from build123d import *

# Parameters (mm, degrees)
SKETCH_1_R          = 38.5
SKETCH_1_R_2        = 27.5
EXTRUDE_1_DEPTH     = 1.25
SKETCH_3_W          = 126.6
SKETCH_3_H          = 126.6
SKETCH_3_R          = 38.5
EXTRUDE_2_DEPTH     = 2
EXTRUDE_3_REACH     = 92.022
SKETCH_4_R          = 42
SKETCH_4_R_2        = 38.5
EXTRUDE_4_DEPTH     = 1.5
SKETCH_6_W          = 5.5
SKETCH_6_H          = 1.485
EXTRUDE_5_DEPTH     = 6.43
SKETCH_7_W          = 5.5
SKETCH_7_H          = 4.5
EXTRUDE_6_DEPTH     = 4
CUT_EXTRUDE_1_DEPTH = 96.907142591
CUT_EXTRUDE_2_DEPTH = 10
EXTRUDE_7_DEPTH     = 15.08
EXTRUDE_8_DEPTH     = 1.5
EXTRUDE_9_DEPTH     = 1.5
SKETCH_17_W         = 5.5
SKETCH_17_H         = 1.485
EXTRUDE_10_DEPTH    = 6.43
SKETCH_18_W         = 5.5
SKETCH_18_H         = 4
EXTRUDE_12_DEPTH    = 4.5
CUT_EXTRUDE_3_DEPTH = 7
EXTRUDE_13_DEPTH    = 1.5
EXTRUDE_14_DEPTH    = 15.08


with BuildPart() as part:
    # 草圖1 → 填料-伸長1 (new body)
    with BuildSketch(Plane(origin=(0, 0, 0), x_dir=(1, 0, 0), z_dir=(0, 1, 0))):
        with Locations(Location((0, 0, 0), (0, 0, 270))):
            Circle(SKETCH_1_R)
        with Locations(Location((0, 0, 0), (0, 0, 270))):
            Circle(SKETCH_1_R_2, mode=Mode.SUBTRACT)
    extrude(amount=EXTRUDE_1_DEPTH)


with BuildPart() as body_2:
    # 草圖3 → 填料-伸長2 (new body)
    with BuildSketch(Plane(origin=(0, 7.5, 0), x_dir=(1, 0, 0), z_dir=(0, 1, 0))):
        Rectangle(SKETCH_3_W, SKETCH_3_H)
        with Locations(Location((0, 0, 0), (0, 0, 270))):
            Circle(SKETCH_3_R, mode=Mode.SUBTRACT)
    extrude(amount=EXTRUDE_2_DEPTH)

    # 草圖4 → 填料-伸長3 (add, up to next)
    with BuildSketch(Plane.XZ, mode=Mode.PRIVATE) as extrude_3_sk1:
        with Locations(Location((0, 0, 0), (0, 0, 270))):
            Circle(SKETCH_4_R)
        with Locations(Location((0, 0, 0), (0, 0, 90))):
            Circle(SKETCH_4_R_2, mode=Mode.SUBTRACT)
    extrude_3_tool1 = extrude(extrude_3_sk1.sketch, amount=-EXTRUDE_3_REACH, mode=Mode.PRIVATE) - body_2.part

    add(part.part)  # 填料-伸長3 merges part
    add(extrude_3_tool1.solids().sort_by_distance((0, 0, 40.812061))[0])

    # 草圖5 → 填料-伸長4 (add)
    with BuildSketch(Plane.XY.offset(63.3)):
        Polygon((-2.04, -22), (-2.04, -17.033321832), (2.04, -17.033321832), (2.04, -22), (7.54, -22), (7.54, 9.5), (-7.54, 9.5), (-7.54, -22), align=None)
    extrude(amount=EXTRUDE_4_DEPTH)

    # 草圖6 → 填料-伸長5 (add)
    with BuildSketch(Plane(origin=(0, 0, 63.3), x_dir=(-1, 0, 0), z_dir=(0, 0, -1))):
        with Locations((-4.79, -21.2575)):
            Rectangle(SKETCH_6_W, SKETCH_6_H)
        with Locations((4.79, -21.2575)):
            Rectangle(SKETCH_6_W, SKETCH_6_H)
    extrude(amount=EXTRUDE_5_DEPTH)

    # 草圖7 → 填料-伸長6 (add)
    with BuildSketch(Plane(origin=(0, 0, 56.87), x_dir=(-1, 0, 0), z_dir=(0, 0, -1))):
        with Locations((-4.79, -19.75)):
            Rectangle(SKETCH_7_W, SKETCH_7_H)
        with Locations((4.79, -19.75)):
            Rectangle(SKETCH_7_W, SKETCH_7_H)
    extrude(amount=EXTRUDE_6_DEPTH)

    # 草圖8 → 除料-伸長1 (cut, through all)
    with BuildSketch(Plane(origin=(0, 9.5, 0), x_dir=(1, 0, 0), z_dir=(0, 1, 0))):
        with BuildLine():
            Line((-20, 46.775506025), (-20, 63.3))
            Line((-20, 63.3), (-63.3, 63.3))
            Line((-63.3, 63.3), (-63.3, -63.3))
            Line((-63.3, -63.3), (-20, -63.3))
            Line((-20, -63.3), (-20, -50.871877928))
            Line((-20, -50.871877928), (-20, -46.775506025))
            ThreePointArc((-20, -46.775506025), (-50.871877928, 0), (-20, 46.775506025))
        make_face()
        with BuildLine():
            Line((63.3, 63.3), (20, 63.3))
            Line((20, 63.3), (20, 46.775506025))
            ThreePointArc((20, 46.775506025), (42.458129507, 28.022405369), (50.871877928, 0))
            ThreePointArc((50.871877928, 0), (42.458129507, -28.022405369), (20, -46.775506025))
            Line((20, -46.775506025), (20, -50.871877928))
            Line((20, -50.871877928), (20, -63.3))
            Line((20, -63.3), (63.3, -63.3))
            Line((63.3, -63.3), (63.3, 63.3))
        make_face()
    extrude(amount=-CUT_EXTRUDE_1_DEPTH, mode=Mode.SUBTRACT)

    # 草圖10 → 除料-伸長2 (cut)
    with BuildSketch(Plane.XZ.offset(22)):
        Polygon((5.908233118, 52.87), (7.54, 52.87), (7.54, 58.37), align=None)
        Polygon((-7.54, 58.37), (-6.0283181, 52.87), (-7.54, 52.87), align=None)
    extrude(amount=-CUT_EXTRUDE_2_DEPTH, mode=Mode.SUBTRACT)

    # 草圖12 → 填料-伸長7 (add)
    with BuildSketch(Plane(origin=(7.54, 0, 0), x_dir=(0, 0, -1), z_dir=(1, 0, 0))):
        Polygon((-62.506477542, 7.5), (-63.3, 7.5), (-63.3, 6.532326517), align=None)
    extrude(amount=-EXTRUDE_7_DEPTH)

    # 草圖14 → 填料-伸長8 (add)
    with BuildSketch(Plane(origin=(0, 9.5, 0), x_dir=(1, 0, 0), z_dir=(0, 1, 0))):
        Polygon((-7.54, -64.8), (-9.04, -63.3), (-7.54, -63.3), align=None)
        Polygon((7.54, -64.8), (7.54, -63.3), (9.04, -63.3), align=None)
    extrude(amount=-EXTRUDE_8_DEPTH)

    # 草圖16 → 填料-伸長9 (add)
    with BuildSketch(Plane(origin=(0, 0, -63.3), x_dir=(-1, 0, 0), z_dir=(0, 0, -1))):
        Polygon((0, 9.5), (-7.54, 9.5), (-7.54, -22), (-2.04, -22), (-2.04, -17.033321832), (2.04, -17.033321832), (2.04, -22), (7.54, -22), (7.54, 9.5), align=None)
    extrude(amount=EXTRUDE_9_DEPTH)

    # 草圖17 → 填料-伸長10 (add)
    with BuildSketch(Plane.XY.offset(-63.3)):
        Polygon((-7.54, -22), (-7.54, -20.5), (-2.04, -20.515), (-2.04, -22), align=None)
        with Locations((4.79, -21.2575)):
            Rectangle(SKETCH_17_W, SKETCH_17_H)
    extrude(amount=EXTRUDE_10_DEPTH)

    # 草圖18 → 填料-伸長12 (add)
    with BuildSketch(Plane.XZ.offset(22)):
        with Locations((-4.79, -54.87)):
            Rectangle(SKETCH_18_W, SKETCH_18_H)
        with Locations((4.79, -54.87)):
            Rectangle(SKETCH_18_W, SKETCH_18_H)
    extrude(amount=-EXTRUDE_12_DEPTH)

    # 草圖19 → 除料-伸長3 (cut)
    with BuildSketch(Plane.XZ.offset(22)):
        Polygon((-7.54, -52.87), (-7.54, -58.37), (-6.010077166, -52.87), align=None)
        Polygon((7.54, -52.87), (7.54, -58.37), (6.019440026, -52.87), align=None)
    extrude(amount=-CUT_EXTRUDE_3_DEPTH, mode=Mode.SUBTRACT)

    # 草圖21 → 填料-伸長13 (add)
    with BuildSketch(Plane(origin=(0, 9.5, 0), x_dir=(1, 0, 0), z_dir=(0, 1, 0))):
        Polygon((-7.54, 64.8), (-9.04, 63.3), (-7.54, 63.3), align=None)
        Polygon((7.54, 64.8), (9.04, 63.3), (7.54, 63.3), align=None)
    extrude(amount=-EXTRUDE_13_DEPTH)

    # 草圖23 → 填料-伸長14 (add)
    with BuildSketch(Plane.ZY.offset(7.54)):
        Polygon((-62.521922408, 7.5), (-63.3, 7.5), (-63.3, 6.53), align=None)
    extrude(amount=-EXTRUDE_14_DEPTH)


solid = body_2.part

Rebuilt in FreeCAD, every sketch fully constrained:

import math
import FreeCAD as App
import Part
import Sketcher

V = App.Vector

doc = App.newDocument("Part")
body = doc.addObject("PartDesign::Body", "Body")

# Sketch on XZ plane
sketch1 = body.newObject("Sketcher::SketchObject", "Sketch")
sketch1.AttachmentSupport = (doc.getObject("XZ_Plane"), [""])
sketch1.MapMode = "FlatFace"
sketch1.addGeometry(Part.Circle(V(0, 0, 0), V(0, 0, 1), 38), False)
sketch1.addGeometry(Part.Circle(V(0, 0, 0), V(0, 0, 1), 28), False)
sketch1.addConstraint(Sketcher.Constraint("Coincident", 0, 3, -1, 1))
sketch1.addConstraint(Sketcher.Constraint("Coincident", 1, 3, -1, 1))
sketch1.addConstraint(Sketcher.Constraint("Diameter", 0, 77.0))
sketch1.addConstraint(Sketcher.Constraint("Diameter", 1, 55.0))
pad1 = body.newObject("PartDesign::Pad", "Pad")
pad1.Profile = sketch1
pad1.Length = 1.25
pad1.Reversed = True
body2 = doc.addObject("PartDesign::Body", "Body001")
body2.AllowCompound = True

# Sketch on XZ plane
sketch2 = body2.newObject("Sketcher::SketchObject", "Sketch001")
sketch2.AttachmentSupport = (doc.getObject("XZ_Plane001"), [""])
sketch2.MapMode = "FlatFace"
sketch2.AttachmentOffset = App.Placement(V(0, 0, -7.5), App.Rotation())
sketch2.addGeometry(Part.LineSegment(V(-63, -63, 0), V(-63, 63, 0)), False)
sketch2.addGeometry(Part.LineSegment(V(-63, 63, 0), V(63, 63, 0)), False)
sketch2.addGeometry(Part.LineSegment(V(63, 63, 0), V(63, -63, 0)), False)
sketch2.addGeometry(Part.LineSegment(V(63, -63, 0), V(-63, -63, 0)), False)
sketch2.addGeometry(Part.Circle(V(0, 0, 0), V(0, 0, 1), 38), False)
sketch2.addConstraint(Sketcher.Constraint("Coincident", 0, 2, 1, 1))
sketch2.addConstraint(Sketcher.Constraint("Coincident", 1, 2, 2, 1))
sketch2.addConstraint(Sketcher.Constraint("Coincident", 2, 2, 3, 1))
sketch2.addConstraint(Sketcher.Constraint("Coincident", 3, 2, 0, 1))
sketch2.addConstraint(Sketcher.Constraint("Vertical", 0))
sketch2.addConstraint(Sketcher.Constraint("Horizontal", 1))
sketch2.addConstraint(Sketcher.Constraint("Vertical", 2))
sketch2.addConstraint(Sketcher.Constraint("Horizontal", 3))
sketch2.addConstraint(Sketcher.Constraint("Coincident", 4, 3, -1, 1))
sketch2.addConstraint(Sketcher.Constraint("Symmetric", 0, 2, 2, 2, -1, 1))
sketch2.addConstraint(Sketcher.Constraint("Equal", 3, 0))
sketch2.addConstraint(Sketcher.Constraint("Diameter", 4, 77.0))
sketch2.addConstraint(Sketcher.Constraint("DistanceX", 1, 1, 1, 2, 126.6))
pad2 = body2.newObject("PartDesign::Pad", "Pad001")
pad2.Profile = sketch2
pad2.Length = 2
pad2.Reversed = True
doc.recompute()

boolean = body2.newObject("PartDesign::Boolean", "Boolean")
boolean.Type = "Fuse"
boolean.addObjects([body])

# Sketch on XZ plane
sketch3 = body2.newObject("Sketcher::SketchObject", "Sketch002")
sketch3.AttachmentSupport = (doc.getObject("XZ_Plane001"), [""])
sketch3.MapMode = "FlatFace"
sketch3.addGeometry(Part.Circle(V(0, 0, 0), V(0, 0, 1), 42), False)
sketch3.addGeometry(Part.Circle(V(0, 0, 0), V(0, 0, 1), 38), False)
sketch3.addConstraint(Sketcher.Constraint("Coincident", 0, 3, -1, 1))
sketch3.addConstraint(Sketcher.Constraint("Coincident", 1, 3, -1, 1))
sketch3.addConstraint(Sketcher.Constraint("Diameter", 0, 84.0))
sketch3.addConstraint(Sketcher.Constraint("Diameter", 1, 77.0))
pad3 = body2.newObject("PartDesign::Pad", "Pad002")
pad3.Profile = sketch3
pad3.Length = 7.5
pad3.Reversed = True

# Sketch on XY plane
sketch4 = body2.newObject("Sketcher::SketchObject", "Sketch003")
sketch4.AttachmentSupport = (doc.getObject("XY_Plane001"), [""])
sketch4.MapMode = "FlatFace"
sketch4.AttachmentOffset = App.Placement(V(0, 0, 63.3), App.Rotation())
sketch4.addGeometry(Part.LineSegment(V(-2, -22, 0), V(-2, -17, 0)), False)
sketch4.addGeometry(Part.LineSegment(V(-2, -17, 0), V(2, -17, 0)), False)
sketch4.addGeometry(Part.LineSegment(V(2, -17, 0), V(2, -22, 0)), False)
sketch4.addGeometry(Part.LineSegment(V(2, -22, 0), V(7.5, -22, 0)), False)
sketch4.addGeometry(Part.LineSegment(V(7.5, -22, 0), V(7.5, 9.5, 0)), False)
sketch4.addGeometry(Part.LineSegment(V(7.5, 9.5, 0), V(-7.5, 9.5, 0)), False)
sketch4.addGeometry(Part.LineSegment(V(-7.5, 9.5, 0), V(-7.5, -22, 0)), False)
sketch4.addGeometry(Part.LineSegment(V(-7.5, -22, 0), V(-2, -22, 0)), False)
sketch4.addConstraint(Sketcher.Constraint("Coincident", 0, 2, 1, 1))
sketch4.addConstraint(Sketcher.Constraint("Coincident", 1, 2, 2, 1))
sketch4.addConstraint(Sketcher.Constraint("Coincident", 2, 2, 3, 1))
sketch4.addConstraint(Sketcher.Constraint("Coincident", 3, 2, 4, 1))
sketch4.addConstraint(Sketcher.Constraint("Coincident", 4, 2, 5, 1))
sketch4.addConstraint(Sketcher.Constraint("Coincident", 5, 2, 6, 1))
sketch4.addConstraint(Sketcher.Constraint("Coincident", 6, 2, 7, 1))
sketch4.addConstraint(Sketcher.Constraint("Coincident", 7, 2, 0, 1))
sketch4.addConstraint(Sketcher.Constraint("Vertical", 0))
sketch4.addConstraint(Sketcher.Constraint("Horizontal", 1))
sketch4.addConstraint(Sketcher.Constraint("Vertical", 2))
sketch4.addConstraint(Sketcher.Constraint("Horizontal", 3))
sketch4.addConstraint(Sketcher.Constraint("Vertical", 4))
sketch4.addConstraint(Sketcher.Constraint("Horizontal", 5))
sketch4.addConstraint(Sketcher.Constraint("Vertical", 6))
sketch4.addConstraint(Sketcher.Constraint("Horizontal", 7))
sketch4.addConstraint(Sketcher.Constraint("Symmetric", 3, 2, 6, 2, -2))
sketch4.addConstraint(Sketcher.Constraint("Equal", 3, 7))
sketch4.addConstraint(Sketcher.Constraint("DistanceX", 3, 1, 3, 2, 5.5))
sketch4.addConstraint(Sketcher.Constraint("DistanceY", 4, 1, 4, 2, 31.5))
sketch4.addConstraint(Sketcher.Constraint("DistanceY", 2, 2, -1, 1, 22.0))
sketch4.addConstraint(Sketcher.Constraint("DistanceX", 1, 1, 1, 2, 4.08))
sketch4.addConstraint(Sketcher.Constraint("DistanceY", 0, 1, 0, 2, 4.966678))
pad4 = body2.newObject("PartDesign::Pad", "Pad003")
pad4.Profile = sketch4
pad4.Length = 1.5

# Sketch on XY plane
sketch5 = body2.newObject("Sketcher::SketchObject", "Sketch004")
sketch5.AttachmentSupport = (doc.getObject("XY_Plane001"), [""])
sketch5.MapMode = "FlatFace"
sketch5.AttachmentOffset = App.Placement(V(0, 0, 63.3), App.Rotation())
sketch5.addGeometry(Part.LineSegment(V(7.5, -20.5, 0), V(7.5, -22, 0)), False)
sketch5.addGeometry(Part.LineSegment(V(7.5, -22, 0), V(2, -22, 0)), False)
sketch5.addGeometry(Part.LineSegment(V(2, -22, 0), V(2, -20.5, 0)), False)
sketch5.addGeometry(Part.LineSegment(V(2, -20.5, 0), V(7.5, -20.5, 0)), False)
sketch5.addGeometry(Part.LineSegment(V(-2, -20.5, 0), V(-2, -22, 0)), False)
sketch5.addGeometry(Part.LineSegment(V(-2, -22, 0), V(-7.5, -22, 0)), False)
sketch5.addGeometry(Part.LineSegment(V(-7.5, -22, 0), V(-7.5, -20.5, 0)), False)
sketch5.addGeometry(Part.LineSegment(V(-7.5, -20.5, 0), V(-2, -20.5, 0)), False)
sketch5.addConstraint(Sketcher.Constraint("Coincident", 0, 2, 1, 1))
sketch5.addConstraint(Sketcher.Constraint("Coincident", 1, 2, 2, 1))
sketch5.addConstraint(Sketcher.Constraint("Coincident", 2, 2, 3, 1))
sketch5.addConstraint(Sketcher.Constraint("Coincident", 3, 2, 0, 1))
sketch5.addConstraint(Sketcher.Constraint("Coincident", 4, 2, 5, 1))
sketch5.addConstraint(Sketcher.Constraint("Coincident", 5, 2, 6, 1))
sketch5.addConstraint(Sketcher.Constraint("Coincident", 6, 2, 7, 1))
sketch5.addConstraint(Sketcher.Constraint("Coincident", 7, 2, 4, 1))
sketch5.addConstraint(Sketcher.Constraint("Vertical", 0))
sketch5.addConstraint(Sketcher.Constraint("Horizontal", 1))
sketch5.addConstraint(Sketcher.Constraint("Vertical", 2))
sketch5.addConstraint(Sketcher.Constraint("Horizontal", 3))
sketch5.addConstraint(Sketcher.Constraint("Vertical", 4))
sketch5.addConstraint(Sketcher.Constraint("Horizontal", 5))
sketch5.addConstraint(Sketcher.Constraint("Vertical", 6))
sketch5.addConstraint(Sketcher.Constraint("Horizontal", 7))
sketch5.addConstraint(Sketcher.Constraint("Symmetric", 1, 2, 4, 2, -2))
sketch5.addConstraint(Sketcher.Constraint("Symmetric", 3, 2, 6, 2, -2))
sketch5.addConstraint(Sketcher.Constraint("DistanceX", 1, 2, 1, 1, 5.5))
sketch5.addConstraint(Sketcher.Constraint("DistanceY", 0, 2, -1, 1, 22.0))
sketch5.addConstraint(Sketcher.Constraint("DistanceY", 0, 2, 0, 1, 1.485))
sketch5.addConstraint(Sketcher.Constraint("DistanceX", -1, 1, 0, 2, 7.54))
pad5 = body2.newObject("PartDesign::Pad", "Pad004")
pad5.Profile = sketch5
pad5.Length = 6.43
pad5.Reversed = True

# Sketch on XY plane
sketch6 = body2.newObject("Sketcher::SketchObject", "Sketch005")
sketch6.AttachmentSupport = (doc.getObject("XY_Plane001"), [""])
sketch6.MapMode = "FlatFace"
sketch6.AttachmentOffset = App.Placement(V(0, 0, 56.87), App.Rotation())
sketch6.addGeometry(Part.LineSegment(V(7.5, -17.5, 0), V(7.5, -22, 0)), False)
sketch6.addGeometry(Part.LineSegment(V(7.5, -22, 0), V(2, -22, 0)), False)
sketch6.addGeometry(Part.LineSegment(V(2, -22, 0), V(2, -17.5, 0)), False)
sketch6.addGeometry(Part.LineSegment(V(2, -17.5, 0), V(7.5, -17.5, 0)), False)
sketch6.addGeometry(Part.LineSegment(V(-2, -17.5, 0), V(-2, -22, 0)), False)
sketch6.addGeometry(Part.LineSegment(V(-2, -22, 0), V(-7.5, -22, 0)), False)
sketch6.addGeometry(Part.LineSegment(V(-7.5, -22, 0), V(-7.5, -17.5, 0)), False)
sketch6.addGeometry(Part.LineSegment(V(-7.5, -17.5, 0), V(-2, -17.5, 0)), False)
sketch6.addConstraint(Sketcher.Constraint("Coincident", 0, 2, 1, 1))
sketch6.addConstraint(Sketcher.Constraint("Coincident", 1, 2, 2, 1))
sketch6.addConstraint(Sketcher.Constraint("Coincident", 2, 2, 3, 1))
sketch6.addConstraint(Sketcher.Constraint("Coincident", 3, 2, 0, 1))
sketch6.addConstraint(Sketcher.Constraint("Coincident", 4, 2, 5, 1))
sketch6.addConstraint(Sketcher.Constraint("Coincident", 5, 2, 6, 1))
sketch6.addConstraint(Sketcher.Constraint("Coincident", 6, 2, 7, 1))
sketch6.addConstraint(Sketcher.Constraint("Coincident", 7, 2, 4, 1))
sketch6.addConstraint(Sketcher.Constraint("Vertical", 0))
sketch6.addConstraint(Sketcher.Constraint("Horizontal", 1))
sketch6.addConstraint(Sketcher.Constraint("Vertical", 2))
sketch6.addConstraint(Sketcher.Constraint("Horizontal", 3))
sketch6.addConstraint(Sketcher.Constraint("Vertical", 4))
sketch6.addConstraint(Sketcher.Constraint("Horizontal", 5))
sketch6.addConstraint(Sketcher.Constraint("Vertical", 6))
sketch6.addConstraint(Sketcher.Constraint("Horizontal", 7))
sketch6.addConstraint(Sketcher.Constraint("Symmetric", 1, 2, 4, 2, -2))
sketch6.addConstraint(Sketcher.Constraint("Symmetric", 3, 2, 6, 2, -2))
sketch6.addConstraint(Sketcher.Constraint("DistanceX", 1, 2, 1, 1, 5.5))
sketch6.addConstraint(Sketcher.Constraint("DistanceY", 0, 2, 0, 1, 4.5))
sketch6.addConstraint(Sketcher.Constraint("DistanceY", 0, 2, -1, 1, 22.0))
sketch6.addConstraint(Sketcher.Constraint("DistanceX", -1, 1, 0, 2, 7.54))
pad6 = body2.newObject("PartDesign::Pad", "Pad005")
pad6.Profile = sketch6
pad6.Length = 4
pad6.Reversed = True

# Sketch on XZ plane
sketch7 = body2.newObject("Sketcher::SketchObject", "Sketch006")
sketch7.AttachmentSupport = (doc.getObject("XZ_Plane001"), [""])
sketch7.MapMode = "FlatFace"
sketch7.AttachmentOffset = App.Placement(V(0, 0, -9.5), App.Rotation())
sketch7.addGeometry(Part.LineSegment(V(-20, -47, 0), V(-20, -63, 0)), False)
sketch7.addGeometry(Part.LineSegment(V(-20, -63, 0), V(-63, -63, 0)), False)
sketch7.addGeometry(Part.LineSegment(V(-63, -63, 0), V(-63, 63, 0)), False)
sketch7.addGeometry(Part.LineSegment(V(-63, 63, 0), V(-20, 63, 0)), False)
sketch7.addGeometry(Part.LineSegment(V(-20, 63, 0), V(-20, 47, 0)), False)
sketch7.addGeometry(Part.ArcOfCircle(Part.Circle(V(0, 0, 0), V(0, 0, 1), 51), math.radians(113), math.radians(247)), False)
sketch7.addGeometry(Part.LineSegment(V(63, -63, 0), V(20, -63, 0)), False)
sketch7.addGeometry(Part.LineSegment(V(20, -63, 0), V(20, -47, 0)), False)
sketch7.addGeometry(Part.ArcOfCircle(Part.Circle(V(0, 0, 0), V(0, 0, 1), 51), math.radians(-67), math.radians(0)), False)
sketch7.addGeometry(Part.ArcOfCircle(Part.Circle(V(0, 0, 0), V(0, 0, 1), 51), math.radians(0), math.radians(67)), False)
sketch7.addGeometry(Part.LineSegment(V(20, 47, 0), V(20, 63, 0)), False)
sketch7.addGeometry(Part.LineSegment(V(20, 63, 0), V(63, 63, 0)), False)
sketch7.addGeometry(Part.LineSegment(V(63, 63, 0), V(63, -63, 0)), False)
sketch7.addConstraint(Sketcher.Constraint("Coincident", 0, 2, 1, 1))
sketch7.addConstraint(Sketcher.Constraint("Coincident", 1, 2, 2, 1))
sketch7.addConstraint(Sketcher.Constraint("Coincident", 2, 2, 3, 1))
sketch7.addConstraint(Sketcher.Constraint("Coincident", 3, 2, 4, 1))
sketch7.addConstraint(Sketcher.Constraint("Coincident", 4, 2, 5, 1))
sketch7.addConstraint(Sketcher.Constraint("Coincident", 5, 2, 0, 1))
sketch7.addConstraint(Sketcher.Constraint("Coincident", 6, 2, 7, 1))
sketch7.addConstraint(Sketcher.Constraint("Coincident", 7, 2, 8, 1))
sketch7.addConstraint(Sketcher.Constraint("Tangent", 8, 2, 9, 1))
sketch7.addConstraint(Sketcher.Constraint("Coincident", 9, 2, 10, 1))
sketch7.addConstraint(Sketcher.Constraint("Coincident", 10, 2, 11, 1))
sketch7.addConstraint(Sketcher.Constraint("Coincident", 11, 2, 12, 1))
sketch7.addConstraint(Sketcher.Constraint("Coincident", 12, 2, 6, 1))
sketch7.addConstraint(Sketcher.Constraint("Vertical", 0))
sketch7.addConstraint(Sketcher.Constraint("Horizontal", 1))
sketch7.addConstraint(Sketcher.Constraint("Vertical", 2))
sketch7.addConstraint(Sketcher.Constraint("Horizontal", 3))
sketch7.addConstraint(Sketcher.Constraint("Vertical", 4))
sketch7.addConstraint(Sketcher.Constraint("Horizontal", 6))
sketch7.addConstraint(Sketcher.Constraint("Vertical", 7))
sketch7.addConstraint(Sketcher.Constraint("Vertical", 10))
sketch7.addConstraint(Sketcher.Constraint("Horizontal", 11))
sketch7.addConstraint(Sketcher.Constraint("Vertical", 12))
sketch7.addConstraint(Sketcher.Constraint("Coincident", 5, 3, -1, 1))
sketch7.addConstraint(Sketcher.Constraint("Coincident", 8, 3, -1, 1))
sketch7.addConstraint(Sketcher.Constraint("Equal", 5, 8))
sketch7.addConstraint(Sketcher.Constraint("Equal", 8, 9))
sketch7.addConstraint(Sketcher.Constraint("Symmetric", 3, 2, 6, 2, -1, 1))
sketch7.addConstraint(Sketcher.Constraint("Symmetric", 0, 2, 10, 2, -1, 1))
sketch7.addConstraint(Sketcher.Constraint("Symmetric", 0, 2, 6, 2, -2))
sketch7.addConstraint(Sketcher.Constraint("PointOnObject", 8, 2, -1))
sketch7.addConstraint(Sketcher.Constraint("Equal", 3, 6))
sketch7.addConstraint(Sketcher.Constraint("DistanceX", 1, 2, 1, 1, 43.3))
sketch7.addConstraint(Sketcher.Constraint("DistanceY", 2, 1, 2, 2, 126.6))
sketch7.addConstraint(Sketcher.Constraint("DistanceX", 0, 2, -1, 1, 20.0))
sketch7.addConstraint(Sketcher.Constraint("Radius", 5, 50.871878))
pocket1 = body2.newObject("PartDesign::Pocket", "Pocket")
pocket1.Profile = sketch7
pocket1.Type = "ThroughAll"
pocket1.Reversed = True

# Sketch on XZ plane
sketch8 = body2.newObject("Sketcher::SketchObject", "Sketch007")
sketch8.AttachmentSupport = (doc.getObject("XZ_Plane001"), [""])
sketch8.MapMode = "FlatFace"
sketch8.AttachmentOffset = App.Placement(V(0, 0, 22), App.Rotation())
sketch8.addGeometry(Part.LineSegment(V(5.9, 52.9, 0), V(7.5, 52.9, 0)), False)
sketch8.addGeometry(Part.LineSegment(V(7.5, 52.9, 0), V(7.5, 58.4, 0)), False)
sketch8.addGeometry(Part.LineSegment(V(7.5, 58.4, 0), V(5.9, 52.9, 0)), False)
sketch8.addGeometry(Part.LineSegment(V(-6, 52.9, 0), V(-7.5, 58.4, 0)), False)
sketch8.addGeometry(Part.LineSegment(V(-7.5, 58.4, 0), V(-7.5, 52.9, 0)), False)
sketch8.addGeometry(Part.LineSegment(V(-7.5, 52.9, 0), V(-6, 52.9, 0)), False)
sketch8.addConstraint(Sketcher.Constraint("Coincident", 0, 2, 1, 1))
sketch8.addConstraint(Sketcher.Constraint("Coincident", 1, 2, 2, 1))
sketch8.addConstraint(Sketcher.Constraint("Coincident", 2, 2, 0, 1))
sketch8.addConstraint(Sketcher.Constraint("Coincident", 3, 2, 4, 1))
sketch8.addConstraint(Sketcher.Constraint("Coincident", 4, 2, 5, 1))
sketch8.addConstraint(Sketcher.Constraint("Coincident", 5, 2, 3, 1))
sketch8.addConstraint(Sketcher.Constraint("Horizontal", 0))
sketch8.addConstraint(Sketcher.Constraint("Vertical", 1))
sketch8.addConstraint(Sketcher.Constraint("Vertical", 4))
sketch8.addConstraint(Sketcher.Constraint("Horizontal", 5))
sketch8.addConstraint(Sketcher.Constraint("Symmetric", 1, 2, 3, 2, -2))
sketch8.addConstraint(Sketcher.Constraint("Horizontal", 2, 2, 4, 2))
sketch8.addConstraint(Sketcher.Constraint("DistanceY", 1, 1, 1, 2, 5.5))
sketch8.addConstraint(Sketcher.Constraint("DistanceX", -1, 1, 0, 2, 7.54))
sketch8.addConstraint(Sketcher.Constraint("DistanceY", -1, 1, 0, 2, 52.87))
sketch8.addConstraint(Sketcher.Constraint("DistanceX", 5, 1, 5, 2, 1.511682))
sketch8.addConstraint(Sketcher.Constraint("DistanceX", 0, 1, 0, 2, 1.631767))
pocket2 = body2.newObject("PartDesign::Pocket", "Pocket001")
pocket2.Profile = sketch8
pocket2.Length = 10

# Sketch on YZ plane
sketch9 = body2.newObject("Sketcher::SketchObject", "Sketch008")
sketch9.AttachmentSupport = (doc.getObject("YZ_Plane001"), [""])
sketch9.MapMode = "FlatFace"
sketch9.AttachmentOffset = App.Placement(V(0, 0, 7.54), App.Rotation())
sketch9.addGeometry(Part.LineSegment(V(7.5, 62.5, 0), V(7.5, 63.3, 0)), False)
sketch9.addGeometry(Part.LineSegment(V(7.5, 63.3, 0), V(6.5, 63.3, 0)), False)
sketch9.addGeometry(Part.LineSegment(V(6.5, 63.3, 0), V(7.5, 62.5, 0)), False)
sketch9.addConstraint(Sketcher.Constraint("Coincident", 0, 2, 1, 1))
sketch9.addConstraint(Sketcher.Constraint("Coincident", 1, 2, 2, 1))
sketch9.addConstraint(Sketcher.Constraint("Coincident", 2, 2, 0, 1))
sketch9.addConstraint(Sketcher.Constraint("Vertical", 0))
sketch9.addConstraint(Sketcher.Constraint("Horizontal", 1))
sketch9.addConstraint(Sketcher.Constraint("DistanceX", -1, 1, 0, 2, 7.5))
sketch9.addConstraint(Sketcher.Constraint("DistanceY", -1, 1, 0, 2, 63.3))
sketch9.addConstraint(Sketcher.Constraint("DistanceX", 1, 2, 1, 1, 0.967673))
sketch9.addConstraint(Sketcher.Constraint("DistanceY", 0, 1, 0, 2, 0.793522))
pad7 = body2.newObject("PartDesign::Pad", "Pad006")
pad7.Profile = sketch9
pad7.Length = 15.08
pad7.Reversed = True

# Sketch on XZ plane
sketch10 = body2.newObject("Sketcher::SketchObject", "Sketch009")
sketch10.AttachmentSupport = (doc.getObject("XZ_Plane001"), [""])
sketch10.MapMode = "FlatFace"
sketch10.AttachmentOffset = App.Placement(V(0, 0, -9.5), App.Rotation())
sketch10.addGeometry(Part.LineSegment(V(-9, 63.3, 0), V(-7.5, 64.8, 0)), False)
sketch10.addGeometry(Part.LineSegment(V(-7.5, 64.8, 0), V(-7.5, 63.3, 0)), False)
sketch10.addGeometry(Part.LineSegment(V(-7.5, 63.3, 0), V(-9, 63.3, 0)), False)
sketch10.addGeometry(Part.LineSegment(V(7.5, 63.3, 0), V(7.5, 64.8, 0)), False)
sketch10.addGeometry(Part.LineSegment(V(7.5, 64.8, 0), V(9, 63.3, 0)), False)
sketch10.addGeometry(Part.LineSegment(V(9, 63.3, 0), V(7.5, 63.3, 0)), False)
sketch10.addConstraint(Sketcher.Constraint("Coincident", 0, 2, 1, 1))
sketch10.addConstraint(Sketcher.Constraint("Coincident", 1, 2, 2, 1))
sketch10.addConstraint(Sketcher.Constraint("Coincident", 2, 2, 0, 1))
sketch10.addConstraint(Sketcher.Constraint("Coincident", 3, 2, 4, 1))
sketch10.addConstraint(Sketcher.Constraint("Coincident", 4, 2, 5, 1))
sketch10.addConstraint(Sketcher.Constraint("Coincident", 5, 2, 3, 1))
sketch10.addConstraint(Sketcher.Constraint("Vertical", 1))
sketch10.addConstraint(Sketcher.Constraint("Horizontal", 2))
sketch10.addConstraint(Sketcher.Constraint("Vertical", 3))
sketch10.addConstraint(Sketcher.Constraint("Horizontal", 5))
sketch10.addConstraint(Sketcher.Constraint("Symmetric", 0, 2, 3, 2, -2))
sketch10.addConstraint(Sketcher.Constraint("Symmetric", 2, 2, 4, 2, -2))
sketch10.addConstraint(Sketcher.Constraint("Perpendicular", 0, 4))
sketch10.addConstraint(Sketcher.Constraint("DistanceX", 2, 2, 2, 1, 1.5))
sketch10.addConstraint(Sketcher.Constraint("DistanceY", -1, 1, 0, 2, 64.8))
sketch10.addConstraint(Sketcher.Constraint("DistanceX", 0, 2, -1, 1, 7.54))
pad8 = body2.newObject("PartDesign::Pad", "Pad007")
pad8.Profile = sketch10
pad8.Length = 1.5

# Sketch on XY plane
sketch11 = body2.newObject("Sketcher::SketchObject", "Sketch010")
sketch11.AttachmentSupport = (doc.getObject("XY_Plane001"), [""])
sketch11.MapMode = "FlatFace"
sketch11.AttachmentOffset = App.Placement(V(0, 0, -63.3), App.Rotation())
sketch11.addGeometry(Part.LineSegment(V(7.5, 9.5, 0), V(7.5, -22, 0)), False)
sketch11.addGeometry(Part.LineSegment(V(7.5, -22, 0), V(2, -22, 0)), False)
sketch11.addGeometry(Part.LineSegment(V(2, -22, 0), V(2, -17, 0)), False)
sketch11.addGeometry(Part.LineSegment(V(2, -17, 0), V(-2, -17, 0)), False)
sketch11.addGeometry(Part.LineSegment(V(-2, -17, 0), V(-2, -22, 0)), False)
sketch11.addGeometry(Part.LineSegment(V(-2, -22, 0), V(-7.5, -22, 0)), False)
sketch11.addGeometry(Part.LineSegment(V(-7.5, -22, 0), V(-7.5, 9.5, 0)), False)
sketch11.addGeometry(Part.LineSegment(V(-7.5, 9.5, 0), V(7.5, 9.5, 0)), False)
sketch11.addConstraint(Sketcher.Constraint("Coincident", 0, 2, 1, 1))
sketch11.addConstraint(Sketcher.Constraint("Coincident", 1, 2, 2, 1))
sketch11.addConstraint(Sketcher.Constraint("Coincident", 2, 2, 3, 1))
sketch11.addConstraint(Sketcher.Constraint("Coincident", 3, 2, 4, 1))
sketch11.addConstraint(Sketcher.Constraint("Coincident", 4, 2, 5, 1))
sketch11.addConstraint(Sketcher.Constraint("Coincident", 5, 2, 6, 1))
sketch11.addConstraint(Sketcher.Constraint("Coincident", 6, 2, 7, 1))
sketch11.addConstraint(Sketcher.Constraint("Coincident", 7, 2, 0, 1))
sketch11.addConstraint(Sketcher.Constraint("Vertical", 0))
sketch11.addConstraint(Sketcher.Constraint("Horizontal", 1))
sketch11.addConstraint(Sketcher.Constraint("Vertical", 2))
sketch11.addConstraint(Sketcher.Constraint("Horizontal", 3))
sketch11.addConstraint(Sketcher.Constraint("Vertical", 4))
sketch11.addConstraint(Sketcher.Constraint("Horizontal", 5))
sketch11.addConstraint(Sketcher.Constraint("Vertical", 6))
sketch11.addConstraint(Sketcher.Constraint("Horizontal", 7))
sketch11.addConstraint(Sketcher.Constraint("Symmetric", 1, 2, 4, 2, -2))
sketch11.addConstraint(Sketcher.Constraint("Equal", 1, 5))
sketch11.addConstraint(Sketcher.Constraint("DistanceX", 1, 2, 1, 1, 5.5))
sketch11.addConstraint(Sketcher.Constraint("DistanceY", 0, 2, 0, 1, 31.5))
sketch11.addConstraint(Sketcher.Constraint("DistanceY", 0, 2, -1, 1, 22.0))
sketch11.addConstraint(Sketcher.Constraint("DistanceX", 3, 2, 3, 1, 4.08))
sketch11.addConstraint(Sketcher.Constraint("DistanceY", 2, 1, 2, 2, 4.966678))
pad9 = body2.newObject("PartDesign::Pad", "Pad008")
pad9.Profile = sketch11
pad9.Length = 1.5
pad9.Reversed = True

# Sketch on XY plane
sketch12 = body2.newObject("Sketcher::SketchObject", "Sketch011")
sketch12.AttachmentSupport = (doc.getObject("XY_Plane001"), [""])
sketch12.MapMode = "FlatFace"
sketch12.AttachmentOffset = App.Placement(V(0, 0, -63.3), App.Rotation())
sketch12.addGeometry(Part.LineSegment(V(-7.5, -20.5, 0), V(-7.5, -22, 0)), False)
sketch12.addGeometry(Part.LineSegment(V(-7.5, -22, 0), V(-2, -22, 0)), False)
sketch12.addGeometry(Part.LineSegment(V(-2, -22, 0), V(-2, -20.5, 0)), False)
sketch12.addGeometry(Part.LineSegment(V(-2, -20.5, 0), V(-7.5, -20.5, 0)), False)
sketch12.addGeometry(Part.LineSegment(V(2, -20.5, 0), V(2, -22, 0)), False)
sketch12.addGeometry(Part.LineSegment(V(2, -22, 0), V(7.5, -22, 0)), False)
sketch12.addGeometry(Part.LineSegment(V(7.5, -22, 0), V(7.5, -20.5, 0)), False)
sketch12.addGeometry(Part.LineSegment(V(7.5, -20.5, 0), V(2, -20.5, 0)), False)
sketch12.addConstraint(Sketcher.Constraint("Coincident", 0, 2, 1, 1))
sketch12.addConstraint(Sketcher.Constraint("Coincident", 1, 2, 2, 1))
sketch12.addConstraint(Sketcher.Constraint("Coincident", 2, 2, 3, 1))
sketch12.addConstraint(Sketcher.Constraint("Coincident", 3, 2, 0, 1))
sketch12.addConstraint(Sketcher.Constraint("Coincident", 4, 2, 5, 1))
sketch12.addConstraint(Sketcher.Constraint("Coincident", 5, 2, 6, 1))
sketch12.addConstraint(Sketcher.Constraint("Coincident", 6, 2, 7, 1))
sketch12.addConstraint(Sketcher.Constraint("Coincident", 7, 2, 4, 1))
sketch12.addConstraint(Sketcher.Constraint("Vertical", 0))
sketch12.addConstraint(Sketcher.Constraint("Horizontal", 1))
sketch12.addConstraint(Sketcher.Constraint("Vertical", 2))
sketch12.addConstraint(Sketcher.Constraint("Vertical", 4))
sketch12.addConstraint(Sketcher.Constraint("Horizontal", 5))
sketch12.addConstraint(Sketcher.Constraint("Vertical", 6))
sketch12.addConstraint(Sketcher.Constraint("Horizontal", 7))
sketch12.addConstraint(Sketcher.Constraint("Symmetric", 1, 2, 4, 2, -2))
sketch12.addConstraint(Sketcher.Constraint("Horizontal", 2, 2, 6, 2))
sketch12.addConstraint(Sketcher.Constraint("Equal", 1, 5))
sketch12.addConstraint(Sketcher.Constraint("DistanceX", 1, 1, 1, 2, 5.5))
sketch12.addConstraint(Sketcher.Constraint("DistanceY", 0, 2, 0, 1, 1.5))
sketch12.addConstraint(Sketcher.Constraint("DistanceY", 0, 2, -1, 1, 22.0))
sketch12.addConstraint(Sketcher.Constraint("DistanceY", 2, 1, 2, 2, 1.485))
sketch12.addConstraint(Sketcher.Constraint("DistanceX", 0, 2, -1, 1, 7.54))
pad10 = body2.newObject("PartDesign::Pad", "Pad009")
pad10.Profile = sketch12
pad10.Length = 6.43

# Sketch on XZ plane
sketch13 = body2.newObject("Sketcher::SketchObject", "Sketch012")
sketch13.AttachmentSupport = (doc.getObject("XZ_Plane001"), [""])
sketch13.MapMode = "FlatFace"
sketch13.AttachmentOffset = App.Placement(V(0, 0, 22), App.Rotation())
sketch13.addGeometry(Part.LineSegment(V(-7.5, -52.9, 0), V(-7.5, -56.9, 0)), False)
sketch13.addGeometry(Part.LineSegment(V(-7.5, -56.9, 0), V(-2, -56.9, 0)), False)
sketch13.addGeometry(Part.LineSegment(V(-2, -56.9, 0), V(-2, -52.9, 0)), False)
sketch13.addGeometry(Part.LineSegment(V(-2, -52.9, 0), V(-7.5, -52.9, 0)), False)
sketch13.addGeometry(Part.LineSegment(V(2, -52.9, 0), V(2, -56.9, 0)), False)
sketch13.addGeometry(Part.LineSegment(V(2, -56.9, 0), V(7.5, -56.9, 0)), False)
sketch13.addGeometry(Part.LineSegment(V(7.5, -56.9, 0), V(7.5, -52.9, 0)), False)
sketch13.addGeometry(Part.LineSegment(V(7.5, -52.9, 0), V(2, -52.9, 0)), False)
sketch13.addConstraint(Sketcher.Constraint("Coincident", 0, 2, 1, 1))
sketch13.addConstraint(Sketcher.Constraint("Coincident", 1, 2, 2, 1))
sketch13.addConstraint(Sketcher.Constraint("Coincident", 2, 2, 3, 1))
sketch13.addConstraint(Sketcher.Constraint("Coincident", 3, 2, 0, 1))
sketch13.addConstraint(Sketcher.Constraint("Coincident", 4, 2, 5, 1))
sketch13.addConstraint(Sketcher.Constraint("Coincident", 5, 2, 6, 1))
sketch13.addConstraint(Sketcher.Constraint("Coincident", 6, 2, 7, 1))
sketch13.addConstraint(Sketcher.Constraint("Coincident", 7, 2, 4, 1))
sketch13.addConstraint(Sketcher.Constraint("Vertical", 0))
sketch13.addConstraint(Sketcher.Constraint("Horizontal", 1))
sketch13.addConstraint(Sketcher.Constraint("Vertical", 2))
sketch13.addConstraint(Sketcher.Constraint("Horizontal", 3))
sketch13.addConstraint(Sketcher.Constraint("Vertical", 4))
sketch13.addConstraint(Sketcher.Constraint("Horizontal", 5))
sketch13.addConstraint(Sketcher.Constraint("Vertical", 6))
sketch13.addConstraint(Sketcher.Constraint("Horizontal", 7))
sketch13.addConstraint(Sketcher.Constraint("Symmetric", 1, 2, 4, 2, -2))
sketch13.addConstraint(Sketcher.Constraint("Symmetric", 3, 2, 6, 2, -2))
sketch13.addConstraint(Sketcher.Constraint("DistanceY", 0, 2, 0, 1, 4.0))
sketch13.addConstraint(Sketcher.Constraint("DistanceX", 1, 1, 1, 2, 5.5))
sketch13.addConstraint(Sketcher.Constraint("DistanceX", 0, 2, -1, 1, 7.54))
sketch13.addConstraint(Sketcher.Constraint("DistanceY", 0, 2, -1, 1, 56.87))
pad11 = body2.newObject("PartDesign::Pad", "Pad010")
pad11.Profile = sketch13
pad11.Length = 4.5
pad11.Reversed = True

# Sketch on XZ plane
sketch14 = body2.newObject("Sketcher::SketchObject", "Sketch013")
sketch14.AttachmentSupport = (doc.getObject("XZ_Plane001"), [""])
sketch14.MapMode = "FlatFace"
sketch14.AttachmentOffset = App.Placement(V(0, 0, 22), App.Rotation())
sketch14.addGeometry(Part.LineSegment(V(-7.5, -52.9, 0), V(-7.5, -58.4, 0)), False)
sketch14.addGeometry(Part.LineSegment(V(-7.5, -58.4, 0), V(-6, -52.9, 0)), False)
sketch14.addGeometry(Part.LineSegment(V(-6, -52.9, 0), V(-7.5, -52.9, 0)), False)
sketch14.addGeometry(Part.LineSegment(V(7.5, -58.4, 0), V(7.5, -52.9, 0)), False)
sketch14.addGeometry(Part.LineSegment(V(7.5, -52.9, 0), V(6, -52.9, 0)), False)
sketch14.addGeometry(Part.LineSegment(V(6, -52.9, 0), V(7.5, -58.4, 0)), False)
sketch14.addConstraint(Sketcher.Constraint("Coincident", 0, 2, 1, 1))
sketch14.addConstraint(Sketcher.Constraint("Coincident", 1, 2, 2, 1))
sketch14.addConstraint(Sketcher.Constraint("Coincident", 2, 2, 0, 1))
sketch14.addConstraint(Sketcher.Constraint("Coincident", 3, 2, 4, 1))
sketch14.addConstraint(Sketcher.Constraint("Coincident", 4, 2, 5, 1))
sketch14.addConstraint(Sketcher.Constraint("Coincident", 5, 2, 3, 1))
sketch14.addConstraint(Sketcher.Constraint("Vertical", 0))
sketch14.addConstraint(Sketcher.Constraint("Horizontal", 2))
sketch14.addConstraint(Sketcher.Constraint("Vertical", 3))
sketch14.addConstraint(Sketcher.Constraint("Horizontal", 4))
sketch14.addConstraint(Sketcher.Constraint("Symmetric", 2, 2, 3, 2, -2))
sketch14.addConstraint(Sketcher.Constraint("Horizontal", 0, 2, 5, 2))
sketch14.addConstraint(Sketcher.Constraint("DistanceY", 0, 2, 0, 1, 5.5))
sketch14.addConstraint(Sketcher.Constraint("DistanceX", 0, 2, -1, 1, 7.54))
sketch14.addConstraint(Sketcher.Constraint("DistanceY", 0, 2, -1, 1, 58.37))
sketch14.addConstraint(Sketcher.Constraint("DistanceX", 4, 2, 4, 1, 1.52056))
sketch14.addConstraint(Sketcher.Constraint("DistanceX", 2, 2, 2, 1, 1.529923))
pocket3 = body2.newObject("PartDesign::Pocket", "Pocket002")
pocket3.Profile = sketch14
pocket3.Length = 7

# Sketch on XZ plane
sketch15 = body2.newObject("Sketcher::SketchObject", "Sketch014")
sketch15.AttachmentSupport = (doc.getObject("XZ_Plane001"), [""])
sketch15.MapMode = "FlatFace"
sketch15.AttachmentOffset = App.Placement(V(0, 0, -9.5), App.Rotation())
sketch15.addGeometry(Part.LineSegment(V(-7.5, -64.8, 0), V(-9, -63.3, 0)), False)
sketch15.addGeometry(Part.LineSegment(V(-9, -63.3, 0), V(-7.5, -63.3, 0)), False)
sketch15.addGeometry(Part.LineSegment(V(-7.5, -63.3, 0), V(-7.5, -64.8, 0)), False)
sketch15.addGeometry(Part.LineSegment(V(9, -63.3, 0), V(7.5, -64.8, 0)), False)
sketch15.addGeometry(Part.LineSegment(V(7.5, -64.8, 0), V(7.5, -63.3, 0)), False)
sketch15.addGeometry(Part.LineSegment(V(7.5, -63.3, 0), V(9, -63.3, 0)), False)
sketch15.addConstraint(Sketcher.Constraint("Coincident", 0, 2, 1, 1))
sketch15.addConstraint(Sketcher.Constraint("Coincident", 1, 2, 2, 1))
sketch15.addConstraint(Sketcher.Constraint("Coincident", 2, 2, 0, 1))
sketch15.addConstraint(Sketcher.Constraint("Coincident", 3, 2, 4, 1))
sketch15.addConstraint(Sketcher.Constraint("Coincident", 4, 2, 5, 1))
sketch15.addConstraint(Sketcher.Constraint("Coincident", 5, 2, 3, 1))
sketch15.addConstraint(Sketcher.Constraint("Horizontal", 1))
sketch15.addConstraint(Sketcher.Constraint("Vertical", 2))
sketch15.addConstraint(Sketcher.Constraint("Vertical", 4))
sketch15.addConstraint(Sketcher.Constraint("Horizontal", 5))
sketch15.addConstraint(Sketcher.Constraint("Symmetric", 2, 2, 3, 2, -2))
sketch15.addConstraint(Sketcher.Constraint("Symmetric", 0, 2, 5, 2, -2))
sketch15.addConstraint(Sketcher.Constraint("Perpendicular", 0, 3))
sketch15.addConstraint(Sketcher.Constraint("DistanceX", 1, 1, 1, 2, 1.5))
sketch15.addConstraint(Sketcher.Constraint("DistanceY", 0, 2, -1, 1, 63.3))
sketch15.addConstraint(Sketcher.Constraint("DistanceX", 0, 2, -1, 1, 9.04))
pad12 = body2.newObject("PartDesign::Pad", "Pad011")
pad12.Profile = sketch15
pad12.Length = 1.5

# Sketch on YZ plane
sketch16 = body2.newObject("Sketcher::SketchObject", "Sketch015")
sketch16.AttachmentSupport = (doc.getObject("YZ_Plane001"), [""])
sketch16.MapMode = "FlatFace"
sketch16.AttachmentOffset = App.Placement(V(0, 0, -7.54), App.Rotation())
sketch16.addGeometry(Part.LineSegment(V(7.5, -62.5, 0), V(7.5, -63.3, 0)), False)
sketch16.addGeometry(Part.LineSegment(V(7.5, -63.3, 0), V(6.5, -63.3, 0)), False)
sketch16.addGeometry(Part.LineSegment(V(6.5, -63.3, 0), V(7.5, -62.5, 0)), False)
sketch16.addConstraint(Sketcher.Constraint("Coincident", 0, 2, 1, 1))
sketch16.addConstraint(Sketcher.Constraint("Coincident", 1, 2, 2, 1))
sketch16.addConstraint(Sketcher.Constraint("Coincident", 2, 2, 0, 1))
sketch16.addConstraint(Sketcher.Constraint("Vertical", 0))
sketch16.addConstraint(Sketcher.Constraint("Horizontal", 1))
sketch16.addConstraint(Sketcher.Constraint("DistanceX", 1, 2, 1, 1, 0.97))
sketch16.addConstraint(Sketcher.Constraint("DistanceX", -1, 1, 0, 2, 7.5))
sketch16.addConstraint(Sketcher.Constraint("DistanceY", 0, 2, -1, 1, 63.3))
sketch16.addConstraint(Sketcher.Constraint("DistanceY", 0, 2, 0, 1, 0.778078))
pad13 = body2.newObject("PartDesign::Pad", "Pad012")
pad13.Profile = sketch16
pad13.Length = 15.08

doc.recompute()
